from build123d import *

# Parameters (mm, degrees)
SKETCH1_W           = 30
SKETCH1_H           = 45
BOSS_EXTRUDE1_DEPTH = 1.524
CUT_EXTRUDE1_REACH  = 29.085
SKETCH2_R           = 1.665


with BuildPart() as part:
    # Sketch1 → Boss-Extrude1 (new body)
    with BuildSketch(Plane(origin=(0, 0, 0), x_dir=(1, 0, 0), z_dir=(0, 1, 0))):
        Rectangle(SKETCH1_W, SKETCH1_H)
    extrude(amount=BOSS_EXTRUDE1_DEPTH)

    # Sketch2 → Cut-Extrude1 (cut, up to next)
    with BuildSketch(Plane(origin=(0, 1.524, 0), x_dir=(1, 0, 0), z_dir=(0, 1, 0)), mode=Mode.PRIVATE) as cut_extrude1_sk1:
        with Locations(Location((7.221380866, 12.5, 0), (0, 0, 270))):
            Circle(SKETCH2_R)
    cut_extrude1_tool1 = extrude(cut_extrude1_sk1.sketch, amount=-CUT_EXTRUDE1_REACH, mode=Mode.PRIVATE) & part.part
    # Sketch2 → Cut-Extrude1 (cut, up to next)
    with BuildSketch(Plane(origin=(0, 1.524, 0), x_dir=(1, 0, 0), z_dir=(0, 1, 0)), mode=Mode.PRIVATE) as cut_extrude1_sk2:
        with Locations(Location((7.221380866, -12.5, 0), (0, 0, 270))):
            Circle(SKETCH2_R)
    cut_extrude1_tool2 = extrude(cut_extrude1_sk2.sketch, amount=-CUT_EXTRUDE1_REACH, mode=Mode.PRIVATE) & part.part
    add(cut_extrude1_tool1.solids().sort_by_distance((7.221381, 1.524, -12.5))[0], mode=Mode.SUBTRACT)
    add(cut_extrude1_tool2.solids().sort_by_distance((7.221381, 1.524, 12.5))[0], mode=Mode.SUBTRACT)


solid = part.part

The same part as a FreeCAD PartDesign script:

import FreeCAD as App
import Part
import Sketcher
from FreeCAD import Vector

doc = App.newDocument("Part")
body = doc.addObject("PartDesign::Body", "Body")

# Sketch on XZ plane
sketch1 = doc.addObject("Sketcher::SketchObject", "Sketch")
body.addObject(sketch1)
sketch1.AttachmentSupport = (doc.XZ_Plane, [""])
sketch1.MapMode = "FlatFace"
sketch1.addGeometry([
    Part.LineSegment(Vector(-15, -22, 0), Vector(-15, 22, 0)),
    Part.LineSegment(Vector(-15, 22, 0), Vector(15, 22, 0)),
    Part.LineSegment(Vector(15, 22, 0), Vector(15, -22, 0)),
    Part.LineSegment(Vector(15, -22, 0), Vector(-15, -22, 0)),
], False)
sketch1.addConstraint([
    Sketcher.Constraint("Coincident", 0, 2, 1, 1),
    Sketcher.Constraint("Coincident", 1, 2, 2, 1),
    Sketcher.Constraint("Coincident", 2, 2, 3, 1),
    Sketcher.Constraint("Coincident", 3, 2, 0, 1),
    Sketcher.Constraint("Vertical", 0),
    Sketcher.Constraint("Horizontal", 1),
    Sketcher.Constraint("Vertical", 2),
    Sketcher.Constraint("Horizontal", 3),
    Sketcher.Constraint("Symmetric", 0, 2, 2, 2, -1, 1),
    Sketcher.Constraint("DistanceX", 1, 1, 1, 2, 30.0),
    Sketcher.Constraint("DistanceY", 0, 1, 0, 2, 45.0),
])
pad1 = doc.addObject("PartDesign::Pad", "Pad")
body.addObject(pad1)
pad1.Profile = sketch1
pad1.Length = 1.524
pad1.Reversed = True

# Sketch on XZ plane
sketch2 = doc.addObject("Sketcher::SketchObject", "Sketch001")
body.addObject(sketch2)
sketch2.AttachmentSupport = (doc.XZ_Plane, [""])
sketch2.MapMode = "FlatFace"
sketch2.AttachmentOffset = App.Placement(Vector(0, 0, -1.524), App.Rotation())
sketch2.addGeometry(Part.Circle(Vector(7.2, -12.5, 0), Vector(0, 0, 1), 1.7), False)
sketch2.addConstraint([
    Sketcher.Constraint("Diameter", 0, 3.33),
    Sketcher.Constraint("DistanceY", 0, 3, -1, 1, 12.5),
    Sketcher.Constraint("DistanceX", -1, 1, 0, 3, 7.221381),
])
pocket1 = doc.addObject("PartDesign::Pocket", "Pocket")
body.addObject(pocket1)
pocket1.Profile = sketch2
pocket1.Type = "UpToFirst"
pocket1.Reversed = True

# Sketch on XZ plane
sketch3 = doc.addObject("Sketcher::SketchObject", "Sketch002")
body.addObject(sketch3)
sketch3.AttachmentSupport = (doc.XZ_Plane, [""])
sketch3.MapMode = "FlatFace"
sketch3.AttachmentOffset = App.Placement(Vector(0, 0, -1.524), App.Rotation())
sketch3.addGeometry(Part.Circle(Vector(7.2, 12.5, 0), Vector(0, 0, 1), 1.7), False)
sketch3.addConstraint([
    Sketcher.Constraint("Diameter", 0, 3.33),
    Sketcher.Constraint("DistanceY", -1, 1, 0, 3, 12.5),
    Sketcher.Constraint("DistanceX", -1, 1, 0, 3, 7.221381),
])
pocket2 = doc.addObject("PartDesign::Pocket", "Pocket001")
body.addObject(pocket2)
pocket2.Profile = sketch3
pocket2.Type = "UpToFirst"
pocket2.Reversed = True

doc.recompute()
